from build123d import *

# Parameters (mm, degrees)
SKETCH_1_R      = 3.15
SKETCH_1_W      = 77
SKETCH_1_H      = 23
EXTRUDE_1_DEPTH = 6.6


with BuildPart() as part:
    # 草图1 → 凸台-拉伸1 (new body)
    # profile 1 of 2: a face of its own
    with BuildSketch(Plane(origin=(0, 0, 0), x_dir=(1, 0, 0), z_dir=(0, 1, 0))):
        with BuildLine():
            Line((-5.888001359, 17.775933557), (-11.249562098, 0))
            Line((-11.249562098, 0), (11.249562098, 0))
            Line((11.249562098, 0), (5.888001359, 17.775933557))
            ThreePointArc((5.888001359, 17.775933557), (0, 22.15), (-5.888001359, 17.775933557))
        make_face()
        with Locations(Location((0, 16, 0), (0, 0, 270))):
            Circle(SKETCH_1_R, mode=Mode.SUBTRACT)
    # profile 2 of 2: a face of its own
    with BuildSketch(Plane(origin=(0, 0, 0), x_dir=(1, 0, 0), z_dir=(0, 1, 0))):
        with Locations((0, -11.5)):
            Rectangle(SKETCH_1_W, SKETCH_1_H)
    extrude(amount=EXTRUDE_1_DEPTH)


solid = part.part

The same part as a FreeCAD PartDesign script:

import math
import FreeCAD as App
import Part
import Sketcher

V = App.Vector

doc = App.newDocument("Part")
body = doc.addObject("PartDesign::Body", "Body")

sketch1 = body.newObject("Sketcher::SketchObject", "Sketch")
sketch1.AttachmentSupport = (doc.getObject("XZ_Plane"), [""])
sketch1.MapMode = "FlatFace"
sketch1.addGeometry(Part.LineSegment(V(-5.9, -17.8, 0), V(-11.2, 0, 0)), False)
sketch1.addGeometry(Part.LineSegment(V(-11.2, 0, 0), V(-38.5, 0, 0)), False)
sketch1.addGeometry(Part.LineSegment(V(-38.5, 0, 0), V(-38.5, 23, 0)), False)
sketch1.addGeometry(Part.LineSegment(V(-38.5, 23, 0), V(38.5, 23, 0)), False)
sketch1.addGeometry(Part.LineSegment(V(38.5, 23, 0), V(38.5, 0, 0)), False)
sketch1.addGeometry(Part.LineSegment(V(38.5, 0, 0), V(11.2, 0, 0)), False)
sketch1.addGeometry(Part.LineSegment(V(11.2, 0, 0), V(5.9, -17.8, 0)), False)
sketch1.addGeometry(Part.ArcOfCircle(Part.Circle(V(0, -16, 0), V(0, 0, 1), 6.2), math.radians(-163), math.radians(-17)), False)
sketch1.addGeometry(Part.Circle(V(0, -16, 0), V(0, 0, 1), 3.1), False)
sketch1.addConstraint(Sketcher.Constraint("Coincident", 0, 2, 1, 1))
sketch1.addConstraint(Sketcher.Constraint("Coincident", 1, 2, 2, 1))
sketch1.addConstraint(Sketcher.Constraint("Coincident", 2, 2, 3, 1))
sketch1.addConstraint(Sketcher.Constraint("Coincident", 3, 2, 4, 1))
sketch1.addConstraint(Sketcher.Constraint("Coincident", 4, 2, 5, 1))
sketch1.addConstraint(Sketcher.Constraint("Coincident", 5, 2, 6, 1))
sketch1.addConstraint(Sketcher.Constraint("Tangent", 6, 2, 7, 2))
sketch1.addConstraint(Sketcher.Constraint("Tangent", 7, 1, 0, 1))
sketch1.addConstraint(Sketcher.Constraint("Horizontal", 1))
sketch1.addConstraint(Sketcher.Constraint("Vertical", 2))
sketch1.addConstraint(Sketcher.Constraint("Horizontal", 3))
sketch1.addConstraint(Sketcher.Constraint("Vertical", 4))
sketch1.addConstraint(Sketcher.Constraint("Horizontal", 5))
sketch1.addConstraint(Sketcher.Constraint("Coincident", 8, 3, 7, 3))
sketch1.addConstraint(Sketcher.Constraint("Symmetric", 1, 2, 4, 2, -1, 1))
sketch1.addConstraint(Sketcher.Constraint("Symmetric", 0, 2, 5, 2, -2))
sketch1.addConstraint(Sketcher.Constraint("PointOnObject", 7, 3, -2))
sketch1.addConstraint(Sketcher.Constraint("Diameter", 8, 6.3))
sketch1.addConstraint(Sketcher.Constraint("DistanceX", 3, 1, 3, 2, 77.0))
sketch1.addConstraint(Sketcher.Constraint("DistanceY", 2, 1, 2, 2, 23.0))
sketch1.addConstraint(Sketcher.Constraint("Radius", 7, 6.15))
sketch1.addConstraint(Sketcher.Constraint("DistanceY", 7, 3, -1, 1, 16.0))
sketch1.addConstraint(Sketcher.Constraint("DistanceX", -1, 1, 6, 2, 5.888001))
pad1 = body.newObject("PartDesign::Pad", "Pad")
pad1.Profile = sketch1
pad1.Length = 6.6
pad1.Reversed = True

doc.recompute()
